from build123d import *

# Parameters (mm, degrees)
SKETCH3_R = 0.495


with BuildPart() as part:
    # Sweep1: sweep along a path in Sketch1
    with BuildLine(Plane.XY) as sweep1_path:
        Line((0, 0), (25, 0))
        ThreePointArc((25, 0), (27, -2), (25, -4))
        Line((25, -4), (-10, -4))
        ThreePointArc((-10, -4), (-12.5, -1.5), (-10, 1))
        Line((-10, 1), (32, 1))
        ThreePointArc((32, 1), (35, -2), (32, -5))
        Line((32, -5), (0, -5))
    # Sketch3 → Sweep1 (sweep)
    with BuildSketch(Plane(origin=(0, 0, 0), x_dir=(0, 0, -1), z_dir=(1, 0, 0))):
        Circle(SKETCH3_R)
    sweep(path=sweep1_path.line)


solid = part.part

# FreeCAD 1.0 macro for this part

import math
import FreeCAD as App
import Part
import Sketcher
from FreeCAD import Vector
Q = App.Units.Quantity

doc = App.newDocument("Part")
body = doc.addObject("PartDesign::Body", "Body")

# Sketch on YZ plane
sketch1 = body.newObject("Sketcher::SketchObject", "Sketch")
sketch1.AttachmentSupport = (doc.getObject("YZ_Plane"), [""])
sketch1.MapMode = "FlatFace"
sketch1.addGeometry(Part.Circle(Vector(0, 0, 0), Vector(0, 0, 1), 0.495), False)
sketch1.addConstraint([
    Sketcher.Constraint("Coincident", 0, 3, -1, 1),
    Sketcher.Constraint("Diameter", 0, Q("0.99 mm")),
])

# Sketch on XY plane
sketch2 = body.newObject("Sketcher::SketchObject", "Sketch001")
sketch2.AttachmentSupport = (doc.getObject("XY_Plane"), [""])
sketch2.MapMode = "FlatFace"
sketch2.addGeometry([
    Part.LineSegment(Vector(0, 0, 0), Vector(25, 0, 0)),  # 0
    Part.ArcOfCircle(Part.Circle(Vector(25, -2, 0), Vector(0, 0, 1), 2), math.radians(-90), math.radians(90)),  # 1
    Part.LineSegment(Vector(25, -4, 0), Vector(-10, -4, 0)),  # 2
    Part.ArcOfCircle(Part.Circle(Vector(-10, -1.5, 0), Vector(0, 0, 1), 2.5), math.radians(90), math.radians(270)),  # 3
    Part.LineSegment(Vector(-10, 1, 0), Vector(32, 1, 0)),  # 4
    Part.ArcOfCircle(Part.Circle(Vector(32, -2, 0), Vector(0, 0, 1), 3), math.radians(-90), math.radians(90)),  # 5
    Part.LineSegment(Vector(32, -5, 0), Vector(0, -5, 0)),  # 6
], False)
sketch2.addConstraint([
    Sketcher.Constraint("Tangent", 0, 2, 1, 2),
    Sketcher.Constraint("Tangent", 1, 1, 2, 1),
    Sketcher.Constraint("Tangent", 2, 2, 3, 2),
    Sketcher.Constraint("Tangent", 3, 1, 4, 1),
    Sketcher.Constraint("Tangent", 4, 2, 5, 2),
    Sketcher.Constraint("Tangent", 5, 1, 6, 1),
    Sketcher.Constraint("Horizontal", 0),
    Sketcher.Constraint("Horizontal", 2),
    Sketcher.Constraint("Horizontal", 4),
    Sketcher.Constraint("Horizontal", 6),
    Sketcher.Constraint("Coincident", 0, 1, -1, 1),
    Sketcher.Constraint("PointOnObject", 6, 2, -2),
    Sketcher.Constraint("Horizontal", 1, 3, 5, 3),
    Sketcher.Constraint("Radius", 1, Q("2 mm")),
    Sketcher.Constraint("Radius", 5, Q("3 mm")),
    Sketcher.Constraint("DistanceX", 0, 1, 0, 2, Q("25 mm")),
    Sketcher.Constraint("DistanceX", 2, 2, 2, 1, Q("35 mm")),
    Sketcher.Constraint("DistanceX", 4, 1, 4, 2, Q("42 mm")),
])
doc.recompute()

additivepipe = body.newObject("PartDesign::AdditivePipe", "AdditivePipe")
additivepipe.Profile = sketch1
additivepipe.Spine = (sketch2, ["Edge1", "Edge2", "Edge3", "Edge4", "Edge5", "Edge6", "Edge7"])

doc.recompute()
